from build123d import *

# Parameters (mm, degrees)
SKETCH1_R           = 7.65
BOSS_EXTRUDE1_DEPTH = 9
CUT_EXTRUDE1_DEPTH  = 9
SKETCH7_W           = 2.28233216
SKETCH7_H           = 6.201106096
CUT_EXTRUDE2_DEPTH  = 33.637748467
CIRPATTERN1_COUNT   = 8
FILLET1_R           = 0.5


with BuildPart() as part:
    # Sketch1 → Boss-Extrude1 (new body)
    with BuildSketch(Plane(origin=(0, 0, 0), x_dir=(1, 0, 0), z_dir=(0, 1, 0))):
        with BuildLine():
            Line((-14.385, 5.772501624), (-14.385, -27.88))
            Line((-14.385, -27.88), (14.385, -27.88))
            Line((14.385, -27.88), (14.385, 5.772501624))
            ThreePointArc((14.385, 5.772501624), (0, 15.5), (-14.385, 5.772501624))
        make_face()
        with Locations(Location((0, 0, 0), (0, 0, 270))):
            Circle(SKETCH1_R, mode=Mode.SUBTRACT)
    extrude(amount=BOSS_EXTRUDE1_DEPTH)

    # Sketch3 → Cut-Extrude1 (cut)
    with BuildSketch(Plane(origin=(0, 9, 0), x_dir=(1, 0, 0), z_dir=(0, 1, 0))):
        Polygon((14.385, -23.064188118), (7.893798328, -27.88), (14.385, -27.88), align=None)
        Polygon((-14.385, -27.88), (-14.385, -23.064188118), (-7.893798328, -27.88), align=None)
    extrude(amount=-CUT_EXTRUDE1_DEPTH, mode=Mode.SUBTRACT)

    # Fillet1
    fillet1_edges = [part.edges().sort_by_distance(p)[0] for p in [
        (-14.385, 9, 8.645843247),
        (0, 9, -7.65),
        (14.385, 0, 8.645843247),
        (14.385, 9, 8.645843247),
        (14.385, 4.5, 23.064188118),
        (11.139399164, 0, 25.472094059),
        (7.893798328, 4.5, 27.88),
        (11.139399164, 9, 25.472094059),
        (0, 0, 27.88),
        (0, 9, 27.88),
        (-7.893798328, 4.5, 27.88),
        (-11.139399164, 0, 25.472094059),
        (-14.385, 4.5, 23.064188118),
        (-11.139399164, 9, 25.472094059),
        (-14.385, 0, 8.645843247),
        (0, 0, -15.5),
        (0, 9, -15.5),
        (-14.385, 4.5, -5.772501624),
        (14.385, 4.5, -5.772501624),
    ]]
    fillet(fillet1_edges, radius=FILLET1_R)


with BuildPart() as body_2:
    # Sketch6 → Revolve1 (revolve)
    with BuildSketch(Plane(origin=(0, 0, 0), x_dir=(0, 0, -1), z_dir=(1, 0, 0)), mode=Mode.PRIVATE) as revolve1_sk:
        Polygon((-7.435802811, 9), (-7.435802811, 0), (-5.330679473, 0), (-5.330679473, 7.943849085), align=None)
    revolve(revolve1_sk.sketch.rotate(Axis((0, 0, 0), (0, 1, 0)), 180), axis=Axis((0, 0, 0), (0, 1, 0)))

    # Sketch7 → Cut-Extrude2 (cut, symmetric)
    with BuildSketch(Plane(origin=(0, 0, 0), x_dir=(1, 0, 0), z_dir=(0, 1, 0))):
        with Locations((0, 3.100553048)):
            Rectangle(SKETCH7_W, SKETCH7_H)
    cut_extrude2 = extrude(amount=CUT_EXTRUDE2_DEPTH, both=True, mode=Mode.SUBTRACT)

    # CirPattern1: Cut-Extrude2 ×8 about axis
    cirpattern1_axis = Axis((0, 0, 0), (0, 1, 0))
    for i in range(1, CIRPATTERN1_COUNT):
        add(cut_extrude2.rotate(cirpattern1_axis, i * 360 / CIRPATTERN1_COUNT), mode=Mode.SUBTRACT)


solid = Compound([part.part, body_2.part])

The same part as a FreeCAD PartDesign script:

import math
import FreeCAD as App
import Part
import Sketcher
from FreeCAD import Vector
Q = App.Units.Quantity


def edges_at(feature, points):
    """Names of the edges that pass closest to the given points."""
    edges = feature.Shape.Edges
    near = lambda p: min(range(len(edges)), key=lambda i: edges[i].distToShape(Part.Vertex(*p))[0])
    return sorted({f"Edge{near(p) + 1}" for p in points})


def add_polygon(sketch, points):
    """Adds a closed chain of lines whose ends are joined by coincident constraints."""
    first, n = sketch.GeometryCount, len(points)
    for a, b in zip(points, points[1:] + points[:1]):
        sketch.addGeometry(Part.LineSegment(App.Vector(*a, 0), App.Vector(*b, 0)), False)
    for i in range(n):
        sketch.addConstraint(Sketcher.Constraint("Coincident", first + i, 2, first + (i + 1) % n, 1))

doc = App.newDocument("Part")
body = doc.addObject("PartDesign::Body", "Body")

# Sketch on XZ plane
sketch1 = body.newObject("Sketcher::SketchObject", "Sketch")
sketch1.AttachmentSupport = (doc.getObject("XZ_Plane"), [""])
sketch1.MapMode = "FlatFace"
sketch1.addGeometry(Part.LineSegment(Vector(-14, -6, 0), Vector(-14, 28, 0)), False)
sketch1.addGeometry(Part.LineSegment(Vector(-14, 28, 0), Vector(14, 28, 0)), False)
sketch1.addGeometry(Part.LineSegment(Vector(14, 28, 0), Vector(14, -6, 0)), False)
sketch1.addGeometry(Part.ArcOfCircle(Part.Circle(Vector(0, 0, 0), Vector(0, 0, 1), 16), math.radians(-158), math.radians(-22)), False)
sketch1.addGeometry(Part.Circle(Vector(0, 0, 0), Vector(0, 0, 1), 8), False)
sketch1.addConstraint(Sketcher.Constraint("Coincident", 0, 2, 1, 1))
sketch1.addConstraint(Sketcher.Constraint("Coincident", 1, 2, 2, 1))
sketch1.addConstraint(Sketcher.Constraint("Coincident", 2, 2, 3, 2))
sketch1.addConstraint(Sketcher.Constraint("Coincident", 3, 1, 0, 1))
sketch1.addConstraint(Sketcher.Constraint("Vertical", 0))
sketch1.addConstraint(Sketcher.Constraint("Horizontal", 1))
sketch1.addConstraint(Sketcher.Constraint("Vertical", 2))
sketch1.addConstraint(Sketcher.Constraint("Coincident", 3, 3, -1, 1))
sketch1.addConstraint(Sketcher.Constraint("Coincident", 4, 3, -1, 1))
sketch1.addConstraint(Sketcher.Constraint("Horizontal", 2, 2, 3, 1))
sketch1.addConstraint(Sketcher.Constraint("Diameter", 4, Q("15.3 mm")))
sketch1.addConstraint(Sketcher.Constraint("Radius", 3, Q("15.5 mm")))
sketch1.addConstraint(Sketcher.Constraint("DistanceX", 1, 1, 1, 2, Q("28.77 mm")))
sketch1.addConstraint(Sketcher.Constraint("DistanceY", -1, 1, 0, 2, Q("27.88 mm")))
pad1 = body.newObject("PartDesign::Pad", "Pad")
pad1.Profile = sketch1
pad1.Length = 9
pad1.Reversed = True

# Sketch on XZ plane
sketch2 = body.newObject("Sketcher::SketchObject", "Sketch001")
sketch2.AttachmentSupport = (doc.getObject("XZ_Plane"), [""])
sketch2.MapMode = "FlatFace"
sketch2.AttachmentOffset = App.Placement(Vector(0, 0, -9), App.Rotation())
add_polygon(sketch2, [(14.4, 23.1), (7.9, 27.9), (14.4, 27.9)])  # lines 0-2
add_polygon(sketch2, [(-14.4, 23.1), (-14.4, 27.9), (-7.9, 27.9)])  # lines 3-5
sketch2.addConstraint(Sketcher.Constraint("Horizontal", 1))
sketch2.addConstraint(Sketcher.Constraint("Vertical", 2))
sketch2.addConstraint(Sketcher.Constraint("Vertical", 3))
sketch2.addConstraint(Sketcher.Constraint("Horizontal", 4))
sketch2.addConstraint(Sketcher.Constraint("Symmetric", 1, 2, 3, 2, -2))
sketch2.addConstraint(Sketcher.Constraint("Horizontal", 2, 2, 5, 2))
sketch2.addConstraint(Sketcher.Constraint("Equal", 1, 4))
sketch2.addConstraint(Sketcher.Constraint("DistanceY", -1, 1, 0, 2, Q("27.88 mm")))
sketch2.addConstraint(Sketcher.Constraint("DistanceX", 3, 2, 1, 2, Q("28.77 mm")))
sketch2.addConstraint(Sketcher.Constraint("DistanceX", 1, 1, 1, 2, Q("6.491202 mm")))
sketch2.addConstraint(Sketcher.Constraint("DistanceY", 2, 2, 2, 1, Q("4.815812 mm")))
pocket1 = body.newObject("PartDesign::Pocket", "Pocket")
pocket1.Profile = sketch2
pocket1.Length = 9
pocket1.Reversed = True
doc.recompute()

fillet = body.newObject("PartDesign::Fillet", "Fillet")
fillet.Base = (pocket1, edges_at(pocket1, [
    (-14.385, 9, 8.646),
    (0, 9, -7.65),
    (14.385, 0, 8.646),
    (14.385, 9, 8.646),
    (14.385, 4.5, 23.064),
    (11.139, 0, 25.472),
    (7.894, 4.5, 27.88),
    (11.139, 9, 25.472),
    (0, 0, 27.88),
    (0, 9, 27.88),
    (-7.894, 4.5, 27.88),
    (-11.139, 0, 25.472),
    (-14.385, 4.5, 23.064),
    (-11.139, 9, 25.472),
    (-14.385, 0, 8.646),
    (0, 0, -15.5),
    (0, 9, -15.5),
    (-14.385, 4.5, -5.773),
    (14.385, 4.5, -5.773),
]))
fillet.Radius = 0.5
body2 = doc.addObject("PartDesign::Body", "Body001")

# Sketch on YZ plane
sketch3 = body2.newObject("Sketcher::SketchObject", "Sketch002")
sketch3.AttachmentSupport = (doc.getObject("YZ_Plane001"), [""])
sketch3.MapMode = "FlatFace"
add_polygon(sketch3, [(9, 7.4), (0, 7.4), (0, 5.3), (7.9, 5.3)])  # lines 0-3
sketch3.addConstraint(Sketcher.Constraint("Horizontal", 0))
sketch3.addConstraint(Sketcher.Constraint("Vertical", 1))
sketch3.addConstraint(Sketcher.Constraint("Horizontal", 2))
sketch3.addConstraint(Sketcher.Constraint("PointOnObject", 0, 2, -2))
sketch3.addConstraint(Sketcher.Constraint("DistanceX", 0, 2, 0, 1, Q("9 mm")))
sketch3.addConstraint(Sketcher.Constraint("DistanceX", 2, 1, 2, 2, Q("7.943849 mm")))
sketch3.addConstraint(Sketcher.Constraint("DistanceY", 1, 2, 1, 1, Q("2.105123 mm")))
sketch3.addConstraint(Sketcher.Constraint("DistanceY", -1, 1, 1, 2, Q("5.330679 mm")))
revolution = body2.newObject("PartDesign::Revolution", "Revolution")
revolution.Profile = sketch3
revolution.ReferenceAxis = (sketch3, ["H_Axis"])
revolution.Angle = 360

# Sketch on XZ plane
sketch4 = body2.newObject("Sketcher::SketchObject", "Sketch003")
sketch4.AttachmentSupport = (doc.getObject("XZ_Plane001"), [""])
sketch4.MapMode = "FlatFace"
add_polygon(sketch4, [(-1.1, -6.2), (-1.1, 0), (1.1, 0), (1.1, -6.2)])  # lines 0-3
sketch4.addConstraint(Sketcher.Constraint("Vertical", 0))
sketch4.addConstraint(Sketcher.Constraint("Horizontal", 1))
sketch4.addConstraint(Sketcher.Constraint("Vertical", 2))
sketch4.addConstraint(Sketcher.Constraint("Horizontal", 3))
sketch4.addConstraint(Sketcher.Constraint("Symmetric", 0, 2, 1, 2, -1, 1))
sketch4.addConstraint(Sketcher.Constraint("DistanceX", 1, 1, 1, 2, Q("2.282332 mm")))
sketch4.addConstraint(Sketcher.Constraint("DistanceY", 0, 1, 0, 2, Q("6.201106 mm")))
pocket2 = body2.newObject("PartDesign::Pocket", "Pocket001")
pocket2.Profile = sketch4
pocket2.Length = 67.275497
pocket2.Midplane = True
doc.recompute()

polarpattern = body2.newObject("PartDesign::PolarPattern", "PolarPattern")
polarpattern.Originals = [pocket2]
polarpattern.Axis = (doc.getObject("Y_Axis001"), [""])
polarpattern.Angle = 360
polarpattern.Occurrences = 8
body2.Tip = polarpattern

doc.recompute()
